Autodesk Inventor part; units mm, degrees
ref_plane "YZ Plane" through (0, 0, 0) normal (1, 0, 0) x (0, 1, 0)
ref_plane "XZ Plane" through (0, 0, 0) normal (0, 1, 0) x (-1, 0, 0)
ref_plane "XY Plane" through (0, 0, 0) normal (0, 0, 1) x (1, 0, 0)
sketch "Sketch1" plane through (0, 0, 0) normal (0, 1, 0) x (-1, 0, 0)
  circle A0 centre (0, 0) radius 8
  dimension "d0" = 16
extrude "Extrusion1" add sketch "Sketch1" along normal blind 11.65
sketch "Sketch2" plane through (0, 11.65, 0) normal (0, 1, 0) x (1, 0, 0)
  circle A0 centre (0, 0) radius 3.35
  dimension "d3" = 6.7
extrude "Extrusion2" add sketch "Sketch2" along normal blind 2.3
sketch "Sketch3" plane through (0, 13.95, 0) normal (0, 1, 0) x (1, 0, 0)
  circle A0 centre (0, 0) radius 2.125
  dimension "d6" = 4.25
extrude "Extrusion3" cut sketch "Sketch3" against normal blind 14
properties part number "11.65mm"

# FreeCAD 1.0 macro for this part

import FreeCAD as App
import Part
import Sketcher
Q = App.Units.Quantity

doc = App.newDocument("Part")
body = doc.addObject("PartDesign::Body", "Body")

# Sketch on XZ plane
sketch1 = body.newObject("Sketcher::SketchObject", "Sketch")
sketch1.AttachmentSupport = (doc.getObject("XZ_Plane"), [""])
sketch1.MapMode = "FlatFace"
sketch1.addGeometry(Part.Circle(App.Vector(0, 0, 0), App.Vector(0, 0, 1), 8), False)
sketch1.addConstraint([
    Sketcher.Constraint("Coincident", 0, 3, -1, 1),
    Sketcher.Constraint("Diameter", 0, Q("16 mm")),
])
pad1 = body.newObject("PartDesign::Pad", "Pad")
pad1.Profile = sketch1
pad1.Length = 11.65
pad1.Reversed = True

# Sketch on XZ plane
sketch2 = body.newObject("Sketcher::SketchObject", "Sketch001")
sketch2.AttachmentSupport = (doc.getObject("XZ_Plane"), [""])
sketch2.MapMode = "FlatFace"
sketch2.AttachmentOffset = App.Placement(App.Vector(0, 0, -11.65), App.Rotation())
sketch2.addGeometry(Part.Circle(App.Vector(0, 0, 0), App.Vector(0, 0, 1), 3.35), False)
sketch2.addConstraint([
    Sketcher.Constraint("Coincident", 0, 3, -1, 1),
    Sketcher.Constraint("Diameter", 0, Q("6.7 mm")),
])
pad2 = body.newObject("PartDesign::Pad", "Pad001")
pad2.Profile = sketch2
pad2.Length = 2.3
pad2.Reversed = True

# Sketch on XZ plane
sketch3 = body.newObject("Sketcher::SketchObject", "Sketch002")
sketch3.AttachmentSupport = (doc.getObject("XZ_Plane"), [""])
sketch3.MapMode = "FlatFace"
sketch3.AttachmentOffset = App.Placement(App.Vector(0, 0, -13.95), App.Rotation())
sketch3.addGeometry(Part.Circle(App.Vector(0, 0, 0), App.Vector(0, 0, 1), 2.125), False)
sketch3.addConstraint([
    Sketcher.Constraint("Coincident", 0, 3, -1, 1),
    Sketcher.Constraint("Diameter", 0, Q("4.25 mm")),
])
pocket1 = body.newObject("PartDesign::Pocket", "Pocket")
pocket1.Profile = sketch3
pocket1.Length = 14
pocket1.Reversed = True

doc.recompute()
